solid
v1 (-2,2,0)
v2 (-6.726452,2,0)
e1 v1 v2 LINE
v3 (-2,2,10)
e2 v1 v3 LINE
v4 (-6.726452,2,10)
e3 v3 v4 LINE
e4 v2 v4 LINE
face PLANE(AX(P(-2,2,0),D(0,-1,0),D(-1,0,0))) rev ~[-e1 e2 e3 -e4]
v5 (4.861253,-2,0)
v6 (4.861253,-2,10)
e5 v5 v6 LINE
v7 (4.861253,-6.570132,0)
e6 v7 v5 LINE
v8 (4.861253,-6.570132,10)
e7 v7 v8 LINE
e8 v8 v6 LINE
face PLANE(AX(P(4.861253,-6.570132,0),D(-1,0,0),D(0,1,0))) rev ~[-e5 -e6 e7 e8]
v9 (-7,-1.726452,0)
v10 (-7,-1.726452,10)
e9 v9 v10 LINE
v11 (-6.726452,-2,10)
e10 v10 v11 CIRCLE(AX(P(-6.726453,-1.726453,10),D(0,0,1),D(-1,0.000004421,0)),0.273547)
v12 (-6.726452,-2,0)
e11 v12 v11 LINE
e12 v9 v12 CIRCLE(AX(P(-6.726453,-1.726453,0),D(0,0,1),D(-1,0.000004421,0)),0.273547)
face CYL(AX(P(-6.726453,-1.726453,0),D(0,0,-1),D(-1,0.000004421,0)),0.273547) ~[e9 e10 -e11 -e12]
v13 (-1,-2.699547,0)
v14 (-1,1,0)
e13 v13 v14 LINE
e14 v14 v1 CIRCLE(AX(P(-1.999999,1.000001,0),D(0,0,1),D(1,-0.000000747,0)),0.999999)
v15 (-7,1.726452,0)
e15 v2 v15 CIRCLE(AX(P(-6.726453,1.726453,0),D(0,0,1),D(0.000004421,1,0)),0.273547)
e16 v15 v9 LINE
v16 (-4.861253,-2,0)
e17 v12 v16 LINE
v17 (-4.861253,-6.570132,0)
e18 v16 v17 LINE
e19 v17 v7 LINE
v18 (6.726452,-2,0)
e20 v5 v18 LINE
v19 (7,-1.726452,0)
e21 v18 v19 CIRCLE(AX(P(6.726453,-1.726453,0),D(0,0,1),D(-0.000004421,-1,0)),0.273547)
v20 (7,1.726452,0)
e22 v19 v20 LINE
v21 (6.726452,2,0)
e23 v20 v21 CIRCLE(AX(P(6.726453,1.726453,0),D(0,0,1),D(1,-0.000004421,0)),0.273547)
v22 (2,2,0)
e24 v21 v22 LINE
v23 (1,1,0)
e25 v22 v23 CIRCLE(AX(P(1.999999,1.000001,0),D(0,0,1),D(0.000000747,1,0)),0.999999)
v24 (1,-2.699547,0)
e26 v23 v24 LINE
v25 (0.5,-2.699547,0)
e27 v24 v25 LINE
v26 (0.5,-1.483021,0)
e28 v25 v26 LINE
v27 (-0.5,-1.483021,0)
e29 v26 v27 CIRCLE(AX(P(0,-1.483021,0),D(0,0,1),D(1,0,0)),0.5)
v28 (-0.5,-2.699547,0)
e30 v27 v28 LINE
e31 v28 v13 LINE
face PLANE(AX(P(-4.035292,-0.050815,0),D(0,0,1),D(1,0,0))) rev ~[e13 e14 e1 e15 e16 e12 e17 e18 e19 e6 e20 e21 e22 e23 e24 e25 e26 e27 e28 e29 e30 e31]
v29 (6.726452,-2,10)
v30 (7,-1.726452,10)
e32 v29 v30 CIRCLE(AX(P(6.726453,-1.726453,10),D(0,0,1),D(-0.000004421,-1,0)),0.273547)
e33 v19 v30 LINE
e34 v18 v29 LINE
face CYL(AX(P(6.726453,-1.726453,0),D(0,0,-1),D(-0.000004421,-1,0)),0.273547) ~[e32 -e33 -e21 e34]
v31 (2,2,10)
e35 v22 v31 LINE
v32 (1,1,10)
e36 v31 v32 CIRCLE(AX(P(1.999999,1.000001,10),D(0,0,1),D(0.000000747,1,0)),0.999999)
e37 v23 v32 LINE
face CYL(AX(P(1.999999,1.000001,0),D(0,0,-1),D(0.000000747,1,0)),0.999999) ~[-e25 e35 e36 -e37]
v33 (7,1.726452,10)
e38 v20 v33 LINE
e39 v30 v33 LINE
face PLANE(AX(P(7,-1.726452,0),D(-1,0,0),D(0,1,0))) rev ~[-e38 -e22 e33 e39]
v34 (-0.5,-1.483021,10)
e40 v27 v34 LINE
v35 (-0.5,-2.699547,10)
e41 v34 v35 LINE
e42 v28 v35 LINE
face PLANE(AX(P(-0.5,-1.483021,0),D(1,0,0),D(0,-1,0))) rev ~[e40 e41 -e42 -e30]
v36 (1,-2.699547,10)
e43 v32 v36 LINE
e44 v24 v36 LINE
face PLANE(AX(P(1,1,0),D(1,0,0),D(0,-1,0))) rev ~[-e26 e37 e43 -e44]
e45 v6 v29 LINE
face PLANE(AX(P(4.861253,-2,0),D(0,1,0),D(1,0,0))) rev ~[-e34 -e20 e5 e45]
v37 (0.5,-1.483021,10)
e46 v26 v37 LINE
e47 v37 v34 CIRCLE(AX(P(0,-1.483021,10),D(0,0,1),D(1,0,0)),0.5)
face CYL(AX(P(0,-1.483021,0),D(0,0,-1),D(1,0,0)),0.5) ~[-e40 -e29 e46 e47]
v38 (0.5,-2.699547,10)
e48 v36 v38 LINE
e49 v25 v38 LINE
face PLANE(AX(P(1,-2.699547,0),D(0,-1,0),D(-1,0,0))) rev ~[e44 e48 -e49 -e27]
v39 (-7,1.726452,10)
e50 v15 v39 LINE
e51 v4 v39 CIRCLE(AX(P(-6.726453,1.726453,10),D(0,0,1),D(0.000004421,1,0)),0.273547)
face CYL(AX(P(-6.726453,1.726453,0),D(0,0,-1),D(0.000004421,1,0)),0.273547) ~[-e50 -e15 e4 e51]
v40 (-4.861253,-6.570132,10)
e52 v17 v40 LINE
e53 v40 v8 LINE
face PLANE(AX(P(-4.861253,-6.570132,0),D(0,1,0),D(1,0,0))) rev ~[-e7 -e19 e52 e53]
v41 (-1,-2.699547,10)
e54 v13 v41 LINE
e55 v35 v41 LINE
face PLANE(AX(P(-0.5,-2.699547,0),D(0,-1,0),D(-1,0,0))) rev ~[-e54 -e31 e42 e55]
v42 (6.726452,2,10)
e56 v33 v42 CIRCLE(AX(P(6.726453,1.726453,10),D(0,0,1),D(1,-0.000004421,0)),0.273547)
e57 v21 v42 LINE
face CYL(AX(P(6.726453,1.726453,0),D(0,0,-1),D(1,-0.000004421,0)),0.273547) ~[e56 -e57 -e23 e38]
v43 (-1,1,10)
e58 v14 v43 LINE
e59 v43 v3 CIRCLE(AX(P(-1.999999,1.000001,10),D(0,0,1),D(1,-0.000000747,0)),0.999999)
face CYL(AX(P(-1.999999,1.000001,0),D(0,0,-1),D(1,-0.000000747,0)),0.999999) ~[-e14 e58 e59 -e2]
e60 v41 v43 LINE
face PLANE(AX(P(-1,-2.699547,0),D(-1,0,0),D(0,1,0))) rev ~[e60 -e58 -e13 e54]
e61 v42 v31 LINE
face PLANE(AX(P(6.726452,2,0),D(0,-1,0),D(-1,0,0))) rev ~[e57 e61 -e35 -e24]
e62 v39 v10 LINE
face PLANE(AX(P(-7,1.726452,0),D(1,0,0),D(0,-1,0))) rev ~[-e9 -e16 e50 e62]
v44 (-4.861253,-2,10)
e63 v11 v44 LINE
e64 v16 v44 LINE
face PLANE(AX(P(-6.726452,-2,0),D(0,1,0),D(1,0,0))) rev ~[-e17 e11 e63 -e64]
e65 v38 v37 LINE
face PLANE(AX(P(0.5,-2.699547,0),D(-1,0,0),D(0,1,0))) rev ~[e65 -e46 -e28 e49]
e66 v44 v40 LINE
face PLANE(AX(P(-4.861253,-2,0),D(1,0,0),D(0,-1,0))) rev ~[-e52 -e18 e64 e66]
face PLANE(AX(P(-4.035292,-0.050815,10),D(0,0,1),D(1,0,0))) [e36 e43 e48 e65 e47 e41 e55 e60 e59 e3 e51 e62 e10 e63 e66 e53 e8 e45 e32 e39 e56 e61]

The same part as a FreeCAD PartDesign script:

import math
import FreeCAD as App
import Part
import Sketcher

V = App.Vector

doc = App.newDocument("Part")
body = doc.addObject("PartDesign::Body", "Body")

sketch1 = body.newObject("Sketcher::SketchObject", "Sketch")
sketch1.AttachmentSupport = (doc.getObject("XY_Plane"), [""])
sketch1.MapMode = "FlatFace"
sketch1.addGeometry(Part.ArcOfCircle(Part.Circle(V(-2, 1, 0), V(0, 0, 1), 1), math.radians(0), math.radians(90)), False)
sketch1.addGeometry(Part.LineSegment(V(-2, 2, 0), V(-6.73, 2, 0)), False)
sketch1.addGeometry(Part.ArcOfCircle(Part.Circle(V(-6.73, 1.73, 0), V(0, 0, 1), 0.27), math.radians(90), math.radians(180)), False)
sketch1.addGeometry(Part.LineSegment(V(-7, 1.73, 0), V(-7, -1.73, 0)), False)
sketch1.addGeometry(Part.ArcOfCircle(Part.Circle(V(-6.73, -1.73, 0), V(0, 0, 1), 0.27), math.radians(180), math.radians(270)), False)
sketch1.addGeometry(Part.LineSegment(V(-6.73, -2, 0), V(-4.86, -2, 0)), False)
sketch1.addGeometry(Part.LineSegment(V(-4.86, -2, 0), V(-4.86, -6.57, 0)), False)
sketch1.addGeometry(Part.LineSegment(V(-4.86, -6.57, 0), V(4.86, -6.57, 0)), False)
sketch1.addGeometry(Part.LineSegment(V(4.86, -6.57, 0), V(4.86, -2, 0)), False)
sketch1.addGeometry(Part.LineSegment(V(4.86, -2, 0), V(6.73, -2, 0)), False)
sketch1.addGeometry(Part.ArcOfCircle(Part.Circle(V(6.73, -1.73, 0), V(0, 0, 1), 0.27), math.radians(-90), math.radians(0)), False)
sketch1.addGeometry(Part.LineSegment(V(7, -1.73, 0), V(7, 1.73, 0)), False)
sketch1.addGeometry(Part.ArcOfCircle(Part.Circle(V(6.73, 1.73, 0), V(0, 0, 1), 0.27), math.radians(0), math.radians(90)), False)
sketch1.addGeometry(Part.LineSegment(V(6.73, 2, 0), V(2, 2, 0)), False)
sketch1.addGeometry(Part.ArcOfCircle(Part.Circle(V(2, 1, 0), V(0, 0, 1), 1), math.radians(90), math.radians(180)), False)
sketch1.addGeometry(Part.LineSegment(V(1, 1, 0), V(1, -2.7, 0)), False)
sketch1.addGeometry(Part.LineSegment(V(1, -2.7, 0), V(0.5, -2.7, 0)), False)
sketch1.addGeometry(Part.LineSegment(V(0.5, -2.7, 0), V(0.5, -1.48, 0)), False)
sketch1.addGeometry(Part.ArcOfCircle(Part.Circle(V(0, -1.48, 0), V(0, 0, 1), 0.5), math.radians(0), math.radians(180)), False)
sketch1.addGeometry(Part.LineSegment(V(-0.5, -1.48, 0), V(-0.5, -2.7, 0)), False)
sketch1.addGeometry(Part.LineSegment(V(-0.5, -2.7, 0), V(-1, -2.7, 0)), False)
sketch1.addGeometry(Part.LineSegment(V(-1, -2.7, 0), V(-1, 1, 0)), False)
sketch1.addConstraint(Sketcher.Constraint("Tangent", 0, 2, 1, 1))
sketch1.addConstraint(Sketcher.Constraint("Coincident", 1, 2, 2, 1))
sketch1.addConstraint(Sketcher.Constraint("Coincident", 2, 2, 3, 1))
sketch1.addConstraint(Sketcher.Constraint("Coincident", 3, 2, 4, 1))
sketch1.addConstraint(Sketcher.Constraint("Coincident", 4, 2, 5, 1))
sketch1.addConstraint(Sketcher.Constraint("Coincident", 5, 2, 6, 1))
sketch1.addConstraint(Sketcher.Constraint("Coincident", 6, 2, 7, 1))
sketch1.addConstraint(Sketcher.Constraint("Coincident", 7, 2, 8, 1))
sketch1.addConstraint(Sketcher.Constraint("Coincident", 8, 2, 9, 1))
sketch1.addConstraint(Sketcher.Constraint("Coincident", 9, 2, 10, 1))
sketch1.addConstraint(Sketcher.Constraint("Coincident", 10, 2, 11, 1))
sketch1.addConstraint(Sketcher.Constraint("Coincident", 11, 2, 12, 1))
sketch1.addConstraint(Sketcher.Constraint("Coincident", 12, 2, 13, 1))
sketch1.addConstraint(Sketcher.Constraint("Tangent", 13, 2, 14, 1))
sketch1.addConstraint(Sketcher.Constraint("Tangent", 14, 2, 15, 1))
sketch1.addConstraint(Sketcher.Constraint("Coincident", 15, 2, 16, 1))
sketch1.addConstraint(Sketcher.Constraint("Coincident", 16, 2, 17, 1))
sketch1.addConstraint(Sketcher.Constraint("Tangent", 17, 2, 18, 1))
sketch1.addConstraint(Sketcher.Constraint("Tangent", 18, 2, 19, 1))
sketch1.addConstraint(Sketcher.Constraint("Coincident", 19, 2, 20, 1))
sketch1.addConstraint(Sketcher.Constraint("Coincident", 20, 2, 21, 1))
sketch1.addConstraint(Sketcher.Constraint("Tangent", 21, 2, 0, 1))
sketch1.addConstraint(Sketcher.Constraint("Horizontal", 1))
sketch1.addConstraint(Sketcher.Constraint("Vertical", 3))
sketch1.addConstraint(Sketcher.Constraint("Horizontal", 5))
sketch1.addConstraint(Sketcher.Constraint("Vertical", 6))
sketch1.addConstraint(Sketcher.Constraint("Horizontal", 7))
sketch1.addConstraint(Sketcher.Constraint("Vertical", 8))
sketch1.addConstraint(Sketcher.Constraint("Horizontal", 9))
sketch1.addConstraint(Sketcher.Constraint("Vertical", 11))
sketch1.addConstraint(Sketcher.Constraint("Horizontal", 13))
sketch1.addConstraint(Sketcher.Constraint("Vertical", 15))
sketch1.addConstraint(Sketcher.Constraint("Horizontal", 16))
sketch1.addConstraint(Sketcher.Constraint("Vertical", 17))
sketch1.addConstraint(Sketcher.Constraint("Vertical", 19))
sketch1.addConstraint(Sketcher.Constraint("Horizontal", 20))
sketch1.addConstraint(Sketcher.Constraint("Vertical", 21))
sketch1.addConstraint(Sketcher.Constraint("Equal", 2, 4))
sketch1.addConstraint(Sketcher.Constraint("Equal", 4, 10))
sketch1.addConstraint(Sketcher.Constraint("Equal", 10, 12))
sketch1.addConstraint(Sketcher.Constraint("Equal", 0, 14))
sketch1.addConstraint(Sketcher.Constraint("Symmetric", 2, 3, 10, 3, -1, 1))
sketch1.addConstraint(Sketcher.Constraint("Symmetric", 4, 2, 12, 2, -1, 1))
sketch1.addConstraint(Sketcher.Constraint("Symmetric", 0, 3, 14, 3, -2))
sketch1.addConstraint(Sketcher.Constraint("Symmetric", 16, 2, 19, 2, -2))
sketch1.addConstraint(Sketcher.Constraint("Horizontal", 12, 3, 2, 2))
sketch1.addConstraint(Sketcher.Constraint("Horizontal", 10, 3, 3, 2))
sketch1.addConstraint(Sketcher.Constraint("Horizontal", 3, 2, 10, 2))
sketch1.addConstraint(Sketcher.Constraint("Horizontal", 2, 2, 11, 2))
sketch1.addConstraint(Sketcher.Constraint("Vertical", 4, 3, 1, 2))
sketch1.addConstraint(Sketcher.Constraint("Vertical", 1, 2, 4, 2))
sketch1.addConstraint(Sketcher.Constraint("Vertical", 12, 3, 9, 2))
sketch1.addConstraint(Sketcher.Constraint("Equal", 5, 9))
sketch1.addConstraint(Sketcher.Constraint("Radius", 0, 0.999999))
sketch1.addConstraint(Sketcher.Constraint("Radius", 18, 0.5))
sketch1.addConstraint(Sketcher.Constraint("DistanceX", 16, 2, 16, 1, 0.5))
sketch1.addConstraint(Sketcher.Constraint("DistanceY", -1, 1, 0, 3, 1.000001))
sketch1.addConstraint(Sketcher.Constraint("DistanceX", 2, 2, -1, 1, 7.0))
sketch1.addConstraint(Sketcher.Constraint("DistanceX", 5, 1, 5, 2, 1.865199))
sketch1.addConstraint(Sketcher.Constraint("Radius", 2, 0.273547))
sketch1.addConstraint(Sketcher.Constraint("DistanceY", 6, 2, 6, 1, 4.570132))
sketch1.addConstraint(Sketcher.Constraint("DistanceY", 15, 2, 15, 1, 3.699547))
sketch1.addConstraint(Sketcher.Constraint("DistanceY", 17, 1, 17, 2, 1.216526))
pad1 = body.newObject("PartDesign::Pad", "Pad")
pad1.Profile = sketch1
pad1.Length = 10

doc.recompute()
